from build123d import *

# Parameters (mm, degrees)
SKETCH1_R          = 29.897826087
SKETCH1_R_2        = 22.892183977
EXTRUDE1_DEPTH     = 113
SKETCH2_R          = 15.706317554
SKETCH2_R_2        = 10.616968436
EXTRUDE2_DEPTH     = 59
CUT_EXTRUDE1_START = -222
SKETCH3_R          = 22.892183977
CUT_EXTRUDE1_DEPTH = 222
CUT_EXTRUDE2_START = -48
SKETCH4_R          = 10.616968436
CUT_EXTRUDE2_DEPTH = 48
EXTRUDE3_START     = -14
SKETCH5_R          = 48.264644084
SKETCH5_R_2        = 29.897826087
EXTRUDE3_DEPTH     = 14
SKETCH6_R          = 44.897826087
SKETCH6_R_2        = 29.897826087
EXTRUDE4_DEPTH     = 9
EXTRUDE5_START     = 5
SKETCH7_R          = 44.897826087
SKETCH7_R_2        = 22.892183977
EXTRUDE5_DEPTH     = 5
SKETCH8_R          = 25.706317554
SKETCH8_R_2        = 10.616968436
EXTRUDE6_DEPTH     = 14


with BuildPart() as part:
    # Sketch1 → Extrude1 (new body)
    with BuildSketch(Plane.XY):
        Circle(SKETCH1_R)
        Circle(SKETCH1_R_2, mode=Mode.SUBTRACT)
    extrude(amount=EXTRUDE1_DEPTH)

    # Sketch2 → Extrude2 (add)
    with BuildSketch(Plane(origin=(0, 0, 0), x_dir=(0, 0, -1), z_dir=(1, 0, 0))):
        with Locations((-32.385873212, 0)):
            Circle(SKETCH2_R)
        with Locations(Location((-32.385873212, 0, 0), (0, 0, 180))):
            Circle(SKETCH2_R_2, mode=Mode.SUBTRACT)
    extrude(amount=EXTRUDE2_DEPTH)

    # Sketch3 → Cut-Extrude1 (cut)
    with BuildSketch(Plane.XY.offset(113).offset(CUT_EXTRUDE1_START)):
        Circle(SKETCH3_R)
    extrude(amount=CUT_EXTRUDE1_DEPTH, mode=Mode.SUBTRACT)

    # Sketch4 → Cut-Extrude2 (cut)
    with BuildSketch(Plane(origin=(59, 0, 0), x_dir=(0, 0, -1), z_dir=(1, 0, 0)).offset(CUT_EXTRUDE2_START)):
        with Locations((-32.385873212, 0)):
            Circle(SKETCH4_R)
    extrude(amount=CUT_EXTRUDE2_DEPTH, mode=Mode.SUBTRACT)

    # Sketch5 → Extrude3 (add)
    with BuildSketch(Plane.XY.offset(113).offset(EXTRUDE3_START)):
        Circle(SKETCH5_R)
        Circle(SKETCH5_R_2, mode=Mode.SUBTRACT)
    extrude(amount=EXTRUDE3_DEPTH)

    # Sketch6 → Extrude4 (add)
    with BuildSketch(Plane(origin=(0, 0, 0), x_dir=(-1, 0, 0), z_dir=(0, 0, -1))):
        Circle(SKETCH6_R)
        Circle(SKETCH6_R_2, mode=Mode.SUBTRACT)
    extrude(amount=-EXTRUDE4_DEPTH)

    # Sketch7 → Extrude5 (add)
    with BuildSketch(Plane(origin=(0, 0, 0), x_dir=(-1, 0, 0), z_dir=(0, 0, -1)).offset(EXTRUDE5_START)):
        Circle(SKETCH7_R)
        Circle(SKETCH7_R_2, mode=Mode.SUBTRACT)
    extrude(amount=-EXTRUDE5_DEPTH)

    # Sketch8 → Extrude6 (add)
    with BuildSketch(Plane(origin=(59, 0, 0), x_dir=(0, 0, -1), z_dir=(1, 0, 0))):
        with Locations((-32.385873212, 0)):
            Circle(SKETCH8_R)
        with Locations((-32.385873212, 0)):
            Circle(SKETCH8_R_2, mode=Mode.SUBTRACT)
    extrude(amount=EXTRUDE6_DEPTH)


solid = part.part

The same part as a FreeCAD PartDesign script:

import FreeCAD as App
import Part
import Sketcher

doc = App.newDocument("Part")
body = doc.addObject("PartDesign::Body", "Body")

# Sketch on XY plane
sketch1 = doc.addObject("Sketcher::SketchObject", "Sketch")
body.addObject(sketch1)
sketch1.AttachmentSupport = (doc.XY_Plane, [""])
sketch1.MapMode = "FlatFace"
sketch1.addGeometry(Part.Circle(App.Vector(0, 0, 0), App.Vector(0, 0, 1), 29.897826), False)
sketch1.addGeometry(Part.Circle(App.Vector(0, 0, 0), App.Vector(0, 0, 1), 22.892184), False)
sketch1.addConstraint(Sketcher.Constraint("Coincident", 0, 3, -1, 1))
sketch1.addConstraint(Sketcher.Constraint("Coincident", 1, 3, -1, 1))
sketch1.addConstraint(Sketcher.Constraint("Diameter", 0, 59.795652))
sketch1.addConstraint(Sketcher.Constraint("Diameter", 1, 45.784368))
pad1 = doc.addObject("PartDesign::Pad", "Pad")
body.addObject(pad1)
pad1.Profile = sketch1
pad1.Length = 113

# Sketch on YZ plane
sketch2 = doc.addObject("Sketcher::SketchObject", "Sketch001")
body.addObject(sketch2)
sketch2.AttachmentSupport = (doc.YZ_Plane, [""])
sketch2.MapMode = "FlatFace"
sketch2.addGeometry(Part.Circle(App.Vector(0, 32.385873, 0), App.Vector(0, 0, 1), 15.706318), False)
sketch2.addGeometry(Part.Circle(App.Vector(0, 32.385873, 0), App.Vector(0, 0, 1), 10.616968), False)
sketch2.addConstraint(Sketcher.Constraint("Coincident", 1, 3, 0, 3))
sketch2.addConstraint(Sketcher.Constraint("PointOnObject", 0, 3, -2))
sketch2.addConstraint(Sketcher.Constraint("Diameter", 0, 31.412635))
sketch2.addConstraint(Sketcher.Constraint("Diameter", 1, 21.233937))
sketch2.addConstraint(Sketcher.Constraint("DistanceY", -1, 1, 0, 3, 32.385873))
pad2 = doc.addObject("PartDesign::Pad", "Pad001")
body.addObject(pad2)
pad2.Profile = sketch2
pad2.Length = 59

# Sketch on XY plane
sketch3 = doc.addObject("Sketcher::SketchObject", "Sketch002")
body.addObject(sketch3)
sketch3.AttachmentSupport = (doc.XY_Plane, [""])
sketch3.MapMode = "FlatFace"
sketch3.AttachmentOffset = App.Placement(App.Vector(0, 0, -109), App.Rotation())
sketch3.addGeometry(Part.Circle(App.Vector(0, 0, 0), App.Vector(0, 0, 1), 22.892184), False)
sketch3.addConstraint(Sketcher.Constraint("Coincident", 0, 3, -1, 1))
sketch3.addConstraint(Sketcher.Constraint("Diameter", 0, 45.784368))
pocket1 = doc.addObject("PartDesign::Pocket", "Pocket")
body.addObject(pocket1)
pocket1.Profile = sketch3
pocket1.Length = 222
pocket1.Reversed = True

# Sketch on YZ plane
sketch4 = doc.addObject("Sketcher::SketchObject", "Sketch003")
body.addObject(sketch4)
sketch4.AttachmentSupport = (doc.YZ_Plane, [""])
sketch4.MapMode = "FlatFace"
sketch4.AttachmentOffset = App.Placement(App.Vector(0, 0, 11), App.Rotation())
sketch4.addGeometry(Part.Circle(App.Vector(0, 32.385873, 0), App.Vector(0, 0, 1), 10.616968), False)
sketch4.addConstraint(Sketcher.Constraint("PointOnObject", 0, 3, -2))
sketch4.addConstraint(Sketcher.Constraint("Diameter", 0, 21.233937))
sketch4.addConstraint(Sketcher.Constraint("DistanceY", -1, 1, 0, 3, 32.385873))
pocket2 = doc.addObject("PartDesign::Pocket", "Pocket001")
body.addObject(pocket2)
pocket2.Profile = sketch4
pocket2.Length = 48
pocket2.Reversed = True

# Sketch on XY plane
sketch5 = doc.addObject("Sketcher::SketchObject", "Sketch004")
body.addObject(sketch5)
sketch5.AttachmentSupport = (doc.XY_Plane, [""])
sketch5.MapMode = "FlatFace"
sketch5.AttachmentOffset = App.Placement(App.Vector(0, 0, 99), App.Rotation())
sketch5.addGeometry(Part.Circle(App.Vector(0, 0, 0), App.Vector(0, 0, 1), 48.264644), False)
sketch5.addGeometry(Part.Circle(App.Vector(0, 0, 0), App.Vector(0, 0, 1), 29.897826), False)
sketch5.addConstraint(Sketcher.Constraint("Coincident", 0, 3, -1, 1))
sketch5.addConstraint(Sketcher.Constraint("Coincident", 1, 3, -1, 1))
sketch5.addConstraint(Sketcher.Constraint("Diameter", 0, 96.529288))
sketch5.addConstraint(Sketcher.Constraint("Diameter", 1, 59.795652))
pad3 = doc.addObject("PartDesign::Pad", "Pad002")
body.addObject(pad3)
pad3.Profile = sketch5
pad3.Length = 14

# Sketch on XY plane
sketch6 = doc.addObject("Sketcher::SketchObject", "Sketch005")
body.addObject(sketch6)
sketch6.AttachmentSupport = (doc.XY_Plane, [""])
sketch6.MapMode = "FlatFace"
sketch6.addGeometry(Part.Circle(App.Vector(0, 0, 0), App.Vector(0, 0, 1), 44.897826), False)
sketch6.addGeometry(Part.Circle(App.Vector(0, 0, 0), App.Vector(0, 0, 1), 29.897826), False)
sketch6.addConstraint(Sketcher.Constraint("Coincident", 0, 3, -1, 1))
sketch6.addConstraint(Sketcher.Constraint("Coincident", 1, 3, -1, 1))
sketch6.addConstraint(Sketcher.Constraint("Diameter", 0, 89.795652))
sketch6.addConstraint(Sketcher.Constraint("Diameter", 1, 59.795652))
pad4 = doc.addObject("PartDesign::Pad", "Pad003")
body.addObject(pad4)
pad4.Profile = sketch6
pad4.Length = 9

# Sketch on XY plane
sketch7 = doc.addObject("Sketcher::SketchObject", "Sketch006")
body.addObject(sketch7)
sketch7.AttachmentSupport = (doc.XY_Plane, [""])
sketch7.MapMode = "FlatFace"
sketch7.AttachmentOffset = App.Placement(App.Vector(0, 0, -5), App.Rotation())
sketch7.addGeometry(Part.Circle(App.Vector(0, 0, 0), App.Vector(0, 0, 1), 44.897826), False)
sketch7.addGeometry(Part.Circle(App.Vector(0, 0, 0), App.Vector(0, 0, 1), 22.892184), False)
sketch7.addConstraint(Sketcher.Constraint("Coincident", 0, 3, -1, 1))
sketch7.addConstraint(Sketcher.Constraint("Coincident", 1, 3, -1, 1))
sketch7.addConstraint(Sketcher.Constraint("Diameter", 0, 89.795652))
sketch7.addConstraint(Sketcher.Constraint("Diameter", 1, 45.784368))
pad5 = doc.addObject("PartDesign::Pad", "Pad004")
body.addObject(pad5)
pad5.Profile = sketch7
pad5.Length = 5

# Sketch on YZ plane
sketch8 = doc.addObject("Sketcher::SketchObject", "Sketch007")
body.addObject(sketch8)
sketch8.AttachmentSupport = (doc.YZ_Plane, [""])
sketch8.MapMode = "FlatFace"
sketch8.AttachmentOffset = App.Placement(App.Vector(0, 0, 59), App.Rotation())
sketch8.addGeometry(Part.Circle(App.Vector(0, 32.385873, 0), App.Vector(0, 0, 1), 25.706318), False)
sketch8.addGeometry(Part.Circle(App.Vector(0, 32.385873, 0), App.Vector(0, 0, 1), 10.616968), False)
sketch8.addConstraint(Sketcher.Constraint("Coincident", 1, 3, 0, 3))
sketch8.addConstraint(Sketcher.Constraint("PointOnObject", 0, 3, -2))
sketch8.addConstraint(Sketcher.Constraint("Diameter", 0, 51.412635))
sketch8.addConstraint(Sketcher.Constraint("Diameter", 1, 21.233937))
sketch8.addConstraint(Sketcher.Constraint("DistanceY", -1, 1, 0, 3, 32.385873))
pad6 = doc.addObject("PartDesign::Pad", "Pad005")
body.addObject(pad6)
pad6.Profile = sketch8
pad6.Length = 14

doc.recompute()
